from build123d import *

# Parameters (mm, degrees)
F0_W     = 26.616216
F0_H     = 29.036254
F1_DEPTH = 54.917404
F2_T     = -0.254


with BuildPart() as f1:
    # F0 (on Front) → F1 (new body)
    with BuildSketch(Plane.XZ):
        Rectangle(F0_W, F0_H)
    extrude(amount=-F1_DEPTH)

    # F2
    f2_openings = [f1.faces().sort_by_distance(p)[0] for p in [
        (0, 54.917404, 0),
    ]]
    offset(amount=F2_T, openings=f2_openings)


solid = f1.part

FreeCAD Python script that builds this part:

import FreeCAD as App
import Part
import Sketcher
from FreeCAD import Vector
Q = App.Units.Quantity


def faces_at(feature, points):
    """Names of the faces that lie closest to the given points."""
    faces = feature.Shape.Faces
    near = lambda p: min(range(len(faces)), key=lambda i: faces[i].distToShape(Part.Vertex(*p))[0])
    return sorted({f"Face{near(p) + 1}" for p in points})


def add_polygon(sketch, points):
    """Adds a closed chain of lines whose ends are joined by coincident constraints."""
    first, n = sketch.GeometryCount, len(points)
    for a, b in zip(points, points[1:] + points[:1]):
        sketch.addGeometry(Part.LineSegment(App.Vector(*a, 0), App.Vector(*b, 0)), False)
    for i in range(n):
        sketch.addConstraint(Sketcher.Constraint("Coincident", first + i, 2, first + (i + 1) % n, 1))

doc = App.newDocument("Part")
body = doc.addObject("PartDesign::Body", "Body")

# Sketch on XZ plane
sketch1 = body.newObject("Sketcher::SketchObject", "Sketch")
sketch1.AttachmentSupport = (doc.getObject("XZ_Plane"), [""])
sketch1.MapMode = "FlatFace"
add_polygon(sketch1, [(-13, 15), (-13, -15), (13, -15), (13, 15)])  # lines 0-3
sketch1.addConstraint([
    Sketcher.Constraint("Vertical", 0),
    Sketcher.Constraint("Horizontal", 1),
    Sketcher.Constraint("Vertical", 2),
    Sketcher.Constraint("Horizontal", 3),
    Sketcher.Constraint("Symmetric", 0, 2, 2, 2, -1, 1),
    Sketcher.Constraint("DistanceX", 1, 1, 1, 2, Q("26.616216 mm")),
    Sketcher.Constraint("DistanceY", 0, 2, 0, 1, Q("29.036254 mm")),
])
pad1 = body.newObject("PartDesign::Pad", "Pad")
pad1.Profile = sketch1
pad1.Length = 54.917404
pad1.Reversed = True
doc.recompute()

thickness = body.newObject("PartDesign::Thickness", "Thickness")
thickness.Base = (pad1, faces_at(pad1, [(0, 54.917, 0)]))
thickness.Value = Q("0.01 in")
thickness.Reversed = True
thickness.Join = "Arc"

doc.recompute()
